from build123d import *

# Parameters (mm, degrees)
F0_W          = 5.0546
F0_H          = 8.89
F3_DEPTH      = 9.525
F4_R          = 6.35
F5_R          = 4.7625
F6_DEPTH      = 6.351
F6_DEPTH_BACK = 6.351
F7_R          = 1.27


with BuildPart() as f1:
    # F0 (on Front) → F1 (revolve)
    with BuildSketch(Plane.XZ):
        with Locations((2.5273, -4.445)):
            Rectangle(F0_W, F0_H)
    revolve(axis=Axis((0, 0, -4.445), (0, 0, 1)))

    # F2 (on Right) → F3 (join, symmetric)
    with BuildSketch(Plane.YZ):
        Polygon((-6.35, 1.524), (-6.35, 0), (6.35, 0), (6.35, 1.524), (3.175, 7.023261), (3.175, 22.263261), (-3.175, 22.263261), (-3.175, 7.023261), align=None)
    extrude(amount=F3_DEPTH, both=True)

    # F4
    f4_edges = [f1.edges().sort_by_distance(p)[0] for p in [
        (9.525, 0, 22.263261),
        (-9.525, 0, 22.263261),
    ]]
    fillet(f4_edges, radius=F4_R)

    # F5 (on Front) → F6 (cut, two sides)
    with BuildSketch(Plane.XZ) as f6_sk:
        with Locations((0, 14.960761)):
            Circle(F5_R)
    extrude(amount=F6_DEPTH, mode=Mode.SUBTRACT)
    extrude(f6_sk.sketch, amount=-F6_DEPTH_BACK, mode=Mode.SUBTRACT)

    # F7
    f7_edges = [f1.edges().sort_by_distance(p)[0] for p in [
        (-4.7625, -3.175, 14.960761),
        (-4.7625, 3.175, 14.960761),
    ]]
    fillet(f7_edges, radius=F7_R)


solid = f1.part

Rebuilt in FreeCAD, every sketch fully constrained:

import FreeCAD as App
import Part
import Sketcher

V = App.Vector
Q = App.Units.Quantity


def edges_at(feature, points):
    """Names of the edges that pass closest to the given points."""
    edges = feature.Shape.Edges
    near = lambda p: min(range(len(edges)), key=lambda i: edges[i].distToShape(Part.Vertex(*p))[0])
    return sorted({f"Edge{near(p) + 1}" for p in points})

doc = App.newDocument("Part")
body = doc.addObject("PartDesign::Body", "Body")

# Sketch on XZ plane
sketch1 = body.newObject("Sketcher::SketchObject", "Sketch")
sketch1.AttachmentSupport = (doc.getObject("XZ_Plane"), [""])
sketch1.MapMode = "FlatFace"
sketch1.addGeometry(Part.LineSegment(V(0, 0, 0), V(0, -8.89, 0)), False)
sketch1.addGeometry(Part.LineSegment(V(0, -8.89, 0), V(5.0546, -8.89, 0)), False)
sketch1.addGeometry(Part.LineSegment(V(5.0546, -8.89, 0), V(5.0546, 0, 0)), False)
sketch1.addGeometry(Part.LineSegment(V(5.0546, 0, 0), V(0, 0, 0)), False)
sketch1.addConstraint(Sketcher.Constraint("Coincident", 0, 2, 1, 1))
sketch1.addConstraint(Sketcher.Constraint("Coincident", 1, 2, 2, 1))
sketch1.addConstraint(Sketcher.Constraint("Coincident", 2, 2, 3, 1))
sketch1.addConstraint(Sketcher.Constraint("Coincident", 3, 2, 0, 1))
sketch1.addConstraint(Sketcher.Constraint("Vertical", 0))
sketch1.addConstraint(Sketcher.Constraint("Horizontal", 1))
sketch1.addConstraint(Sketcher.Constraint("Vertical", 2))
sketch1.addConstraint(Sketcher.Constraint("Horizontal", 3))
sketch1.addConstraint(Sketcher.Constraint("Coincident", 3, 2, -1, 1))
sketch1.addConstraint(Sketcher.Constraint("DistanceY", 0, 2, 0, 1, Q("0.35 in")))
sketch1.addConstraint(Sketcher.Constraint("DistanceX", 1, 1, 1, 2, Q("0.199 in")))
revolution = body.newObject("PartDesign::Revolution", "Revolution")
revolution.Profile = sketch1
revolution.ReferenceAxis = (sketch1, ["V_Axis"])
revolution.Angle = 360

# Sketch on YZ plane
sketch2 = body.newObject("Sketcher::SketchObject", "Sketch001")
sketch2.AttachmentSupport = (doc.getObject("YZ_Plane"), [""])
sketch2.MapMode = "FlatFace"
sketch2.addGeometry(Part.LineSegment(V(-6.35, 1.524, 0), V(-6.35, 0, 0)), False)
sketch2.addGeometry(Part.LineSegment(V(-6.35, 0, 0), V(6.35, 0, 0)), False)
sketch2.addGeometry(Part.LineSegment(V(6.35, 0, 0), V(6.35, 1.524, 0)), False)
sketch2.addGeometry(Part.LineSegment(V(6.35, 1.524, 0), V(3.175, 7.023261, 0)), False)
sketch2.addGeometry(Part.LineSegment(V(3.175, 7.023261, 0), V(3.175, 22.263261, 0)), False)
sketch2.addGeometry(Part.LineSegment(V(3.175, 22.263261, 0), V(-3.175, 22.263261, 0)), False)
sketch2.addGeometry(Part.LineSegment(V(-3.175, 22.263261, 0), V(-3.175, 7.023261, 0)), False)
sketch2.addGeometry(Part.LineSegment(V(-3.175, 7.023261, 0), V(-6.35, 1.524, 0)), False)
sketch2.addConstraint(Sketcher.Constraint("Coincident", 0, 2, 1, 1))
sketch2.addConstraint(Sketcher.Constraint("Coincident", 1, 2, 2, 1))
sketch2.addConstraint(Sketcher.Constraint("Coincident", 2, 2, 3, 1))
sketch2.addConstraint(Sketcher.Constraint("Coincident", 3, 2, 4, 1))
sketch2.addConstraint(Sketcher.Constraint("Coincident", 4, 2, 5, 1))
sketch2.addConstraint(Sketcher.Constraint("Coincident", 5, 2, 6, 1))
sketch2.addConstraint(Sketcher.Constraint("Coincident", 6, 2, 7, 1))
sketch2.addConstraint(Sketcher.Constraint("Coincident", 7, 2, 0, 1))
sketch2.addConstraint(Sketcher.Constraint("Vertical", 0))
sketch2.addConstraint(Sketcher.Constraint("Horizontal", 1))
sketch2.addConstraint(Sketcher.Constraint("Vertical", 2))
sketch2.addConstraint(Sketcher.Constraint("Vertical", 4))
sketch2.addConstraint(Sketcher.Constraint("Horizontal", 5))
sketch2.addConstraint(Sketcher.Constraint("Vertical", 6))
sketch2.addConstraint(Sketcher.Constraint("Symmetric", 0, 2, 1, 2, -1, 1))
sketch2.addConstraint(Sketcher.Constraint("Symmetric", 3, 2, 6, 2, -2))
sketch2.addConstraint(Sketcher.Constraint("Horizontal", 2, 2, 7, 2))
sketch2.addConstraint(Sketcher.Constraint("DistanceX", 1, 1, 1, 2, Q("0.5 in")))
sketch2.addConstraint(Sketcher.Constraint("DistanceY", 4, 1, 4, 2, Q("0.6 in")))
sketch2.addConstraint(Sketcher.Constraint("Angle", 3, Q("120.000001 deg")))
sketch2.addConstraint(Sketcher.Constraint("DistanceX", 5, 2, 5, 1, Q("0.25 in")))
sketch2.addConstraint(Sketcher.Constraint("DistanceY", 0, 2, 0, 1, Q("0.06 in")))
pad1 = body.newObject("PartDesign::Pad", "Pad")
pad1.Profile = sketch2
pad1.Length = Q("0.75 in")
pad1.Midplane = True
doc.recompute()

fillet = body.newObject("PartDesign::Fillet", "Fillet")
fillet.Base = (pad1, edges_at(pad1, [(9.525, 0, 22.263), (-9.525, 0, 22.263)]))
fillet.Radius = Q("0.25 in")

# Sketch on XZ plane
sketch3 = body.newObject("Sketcher::SketchObject", "Sketch002")
sketch3.AttachmentSupport = (doc.getObject("XZ_Plane"), [""])
sketch3.MapMode = "FlatFace"
sketch3.addGeometry(Part.Circle(V(0, 14.960761, 0), V(0, 0, 1), 4.7625), False)
sketch3.addConstraint(Sketcher.Constraint("PointOnObject", 0, 3, -2))
sketch3.addConstraint(Sketcher.Constraint("Diameter", 0, Q("0.375 in")))
sketch3.addConstraint(Sketcher.Constraint("DistanceY", -1, 1, 0, 3, 14.960761))
pocket1 = body.newObject("PartDesign::Pocket", "Pocket")
pocket1.Profile = sketch3
pocket1.Type = "ThroughAll"
pocket1.Midplane = True
doc.recompute()

fillet2 = body.newObject("PartDesign::Fillet", "Fillet001")
fillet2.Base = (pocket1, edges_at(pocket1, [(-4.763, -3.175, 14.961), (-4.763, 3.175, 14.961)]))
fillet2.Radius = Q("0.05 in")

doc.recompute()
